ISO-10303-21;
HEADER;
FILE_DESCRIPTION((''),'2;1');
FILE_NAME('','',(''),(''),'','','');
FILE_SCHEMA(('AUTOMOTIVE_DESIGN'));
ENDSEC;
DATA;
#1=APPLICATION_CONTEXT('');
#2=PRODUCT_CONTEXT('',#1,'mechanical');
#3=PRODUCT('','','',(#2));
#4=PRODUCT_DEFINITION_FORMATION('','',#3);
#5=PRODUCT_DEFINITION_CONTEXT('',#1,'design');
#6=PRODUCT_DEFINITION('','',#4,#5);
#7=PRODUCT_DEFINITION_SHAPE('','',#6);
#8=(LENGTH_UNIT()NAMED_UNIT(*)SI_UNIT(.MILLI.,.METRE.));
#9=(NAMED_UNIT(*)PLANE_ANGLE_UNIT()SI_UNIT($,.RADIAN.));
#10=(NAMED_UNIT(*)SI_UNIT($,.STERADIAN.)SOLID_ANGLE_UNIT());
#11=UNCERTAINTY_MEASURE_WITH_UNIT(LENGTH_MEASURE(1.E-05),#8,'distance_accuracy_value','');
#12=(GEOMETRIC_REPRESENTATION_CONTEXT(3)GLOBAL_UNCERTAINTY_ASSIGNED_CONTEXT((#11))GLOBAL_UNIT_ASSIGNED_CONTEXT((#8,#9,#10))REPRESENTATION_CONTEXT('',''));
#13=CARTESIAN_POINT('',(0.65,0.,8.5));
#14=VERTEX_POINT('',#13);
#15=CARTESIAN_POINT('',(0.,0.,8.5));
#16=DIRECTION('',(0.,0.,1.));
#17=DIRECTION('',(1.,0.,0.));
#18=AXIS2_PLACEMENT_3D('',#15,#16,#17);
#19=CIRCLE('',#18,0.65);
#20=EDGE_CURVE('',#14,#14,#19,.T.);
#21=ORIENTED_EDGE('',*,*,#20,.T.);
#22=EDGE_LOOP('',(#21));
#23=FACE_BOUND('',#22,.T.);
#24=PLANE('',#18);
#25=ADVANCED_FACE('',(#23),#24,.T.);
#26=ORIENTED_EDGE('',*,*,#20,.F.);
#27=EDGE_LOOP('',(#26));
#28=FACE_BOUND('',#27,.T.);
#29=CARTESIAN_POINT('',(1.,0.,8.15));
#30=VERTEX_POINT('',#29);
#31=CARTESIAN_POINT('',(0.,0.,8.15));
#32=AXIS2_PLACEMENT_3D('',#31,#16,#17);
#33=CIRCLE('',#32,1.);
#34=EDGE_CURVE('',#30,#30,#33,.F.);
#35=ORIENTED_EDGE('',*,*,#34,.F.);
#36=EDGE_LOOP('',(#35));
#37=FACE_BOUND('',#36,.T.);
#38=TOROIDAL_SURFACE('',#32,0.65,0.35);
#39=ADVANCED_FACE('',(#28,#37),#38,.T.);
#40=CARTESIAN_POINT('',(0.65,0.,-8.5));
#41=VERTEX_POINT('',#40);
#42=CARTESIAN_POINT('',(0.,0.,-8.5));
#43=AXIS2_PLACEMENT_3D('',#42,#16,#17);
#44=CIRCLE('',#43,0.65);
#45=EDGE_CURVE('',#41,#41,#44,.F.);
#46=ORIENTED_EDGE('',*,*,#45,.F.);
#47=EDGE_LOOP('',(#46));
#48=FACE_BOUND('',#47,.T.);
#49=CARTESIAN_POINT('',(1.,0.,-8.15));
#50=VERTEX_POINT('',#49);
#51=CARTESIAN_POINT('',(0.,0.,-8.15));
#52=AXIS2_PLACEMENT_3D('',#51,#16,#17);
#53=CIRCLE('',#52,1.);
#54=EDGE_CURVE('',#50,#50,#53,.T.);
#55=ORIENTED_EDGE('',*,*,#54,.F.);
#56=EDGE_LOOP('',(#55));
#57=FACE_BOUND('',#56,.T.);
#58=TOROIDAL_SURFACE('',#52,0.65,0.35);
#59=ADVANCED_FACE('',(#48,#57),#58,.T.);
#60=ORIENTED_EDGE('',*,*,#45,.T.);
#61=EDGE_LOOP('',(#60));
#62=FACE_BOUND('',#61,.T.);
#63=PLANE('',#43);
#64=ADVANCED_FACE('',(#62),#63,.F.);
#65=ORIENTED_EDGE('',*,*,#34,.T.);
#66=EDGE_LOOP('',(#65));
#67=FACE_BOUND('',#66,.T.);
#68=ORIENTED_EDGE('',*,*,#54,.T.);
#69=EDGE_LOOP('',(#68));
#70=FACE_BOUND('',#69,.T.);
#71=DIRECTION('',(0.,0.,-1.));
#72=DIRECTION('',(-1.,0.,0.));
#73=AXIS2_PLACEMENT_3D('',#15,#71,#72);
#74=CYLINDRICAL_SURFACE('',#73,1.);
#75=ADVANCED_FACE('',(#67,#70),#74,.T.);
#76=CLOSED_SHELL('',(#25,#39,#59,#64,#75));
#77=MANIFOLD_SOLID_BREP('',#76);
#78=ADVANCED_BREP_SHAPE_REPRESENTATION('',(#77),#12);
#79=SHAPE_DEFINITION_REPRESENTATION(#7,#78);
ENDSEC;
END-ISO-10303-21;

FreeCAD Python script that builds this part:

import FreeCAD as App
import Part
import Sketcher

V = App.Vector
Q = App.Units.Quantity


def edges_at(feature, points):
    """Names of the edges that pass closest to the given points."""
    edges = feature.Shape.Edges
    near = lambda p: min(range(len(edges)), key=lambda i: edges[i].distToShape(Part.Vertex(*p))[0])
    return sorted({f"Edge{near(p) + 1}" for p in points})

doc = App.newDocument("Part")
body = doc.addObject("PartDesign::Body", "Body")

# Sketch on XY plane
sketch1 = doc.addObject("Sketcher::SketchObject", "Sketch")
body.addObject(sketch1)
sketch1.AttachmentSupport = (doc.XY_Plane, [""])
sketch1.MapMode = "FlatFace"
sketch1.addGeometry(Part.Circle(V(0, 0, 0), V(0, 0, 1), 1), False)
sketch1.addConstraint([
    Sketcher.Constraint("Coincident", 0, 3, -1, 1),
    Sketcher.Constraint("Diameter", 0, Q("2 mm")),
])
pad1 = doc.addObject("PartDesign::Pad", "Pad")
body.addObject(pad1)
pad1.Profile = sketch1
pad1.Length = 17
pad1.Midplane = True
doc.recompute()

fillet = doc.addObject("PartDesign::Fillet", "Fillet")
body.addObject(fillet)
fillet.Base = (pad1, edges_at(pad1, [(-1, 0, -8.5), (-1, 0, 8.5)]))
fillet.Radius = 0.35

doc.recompute()
